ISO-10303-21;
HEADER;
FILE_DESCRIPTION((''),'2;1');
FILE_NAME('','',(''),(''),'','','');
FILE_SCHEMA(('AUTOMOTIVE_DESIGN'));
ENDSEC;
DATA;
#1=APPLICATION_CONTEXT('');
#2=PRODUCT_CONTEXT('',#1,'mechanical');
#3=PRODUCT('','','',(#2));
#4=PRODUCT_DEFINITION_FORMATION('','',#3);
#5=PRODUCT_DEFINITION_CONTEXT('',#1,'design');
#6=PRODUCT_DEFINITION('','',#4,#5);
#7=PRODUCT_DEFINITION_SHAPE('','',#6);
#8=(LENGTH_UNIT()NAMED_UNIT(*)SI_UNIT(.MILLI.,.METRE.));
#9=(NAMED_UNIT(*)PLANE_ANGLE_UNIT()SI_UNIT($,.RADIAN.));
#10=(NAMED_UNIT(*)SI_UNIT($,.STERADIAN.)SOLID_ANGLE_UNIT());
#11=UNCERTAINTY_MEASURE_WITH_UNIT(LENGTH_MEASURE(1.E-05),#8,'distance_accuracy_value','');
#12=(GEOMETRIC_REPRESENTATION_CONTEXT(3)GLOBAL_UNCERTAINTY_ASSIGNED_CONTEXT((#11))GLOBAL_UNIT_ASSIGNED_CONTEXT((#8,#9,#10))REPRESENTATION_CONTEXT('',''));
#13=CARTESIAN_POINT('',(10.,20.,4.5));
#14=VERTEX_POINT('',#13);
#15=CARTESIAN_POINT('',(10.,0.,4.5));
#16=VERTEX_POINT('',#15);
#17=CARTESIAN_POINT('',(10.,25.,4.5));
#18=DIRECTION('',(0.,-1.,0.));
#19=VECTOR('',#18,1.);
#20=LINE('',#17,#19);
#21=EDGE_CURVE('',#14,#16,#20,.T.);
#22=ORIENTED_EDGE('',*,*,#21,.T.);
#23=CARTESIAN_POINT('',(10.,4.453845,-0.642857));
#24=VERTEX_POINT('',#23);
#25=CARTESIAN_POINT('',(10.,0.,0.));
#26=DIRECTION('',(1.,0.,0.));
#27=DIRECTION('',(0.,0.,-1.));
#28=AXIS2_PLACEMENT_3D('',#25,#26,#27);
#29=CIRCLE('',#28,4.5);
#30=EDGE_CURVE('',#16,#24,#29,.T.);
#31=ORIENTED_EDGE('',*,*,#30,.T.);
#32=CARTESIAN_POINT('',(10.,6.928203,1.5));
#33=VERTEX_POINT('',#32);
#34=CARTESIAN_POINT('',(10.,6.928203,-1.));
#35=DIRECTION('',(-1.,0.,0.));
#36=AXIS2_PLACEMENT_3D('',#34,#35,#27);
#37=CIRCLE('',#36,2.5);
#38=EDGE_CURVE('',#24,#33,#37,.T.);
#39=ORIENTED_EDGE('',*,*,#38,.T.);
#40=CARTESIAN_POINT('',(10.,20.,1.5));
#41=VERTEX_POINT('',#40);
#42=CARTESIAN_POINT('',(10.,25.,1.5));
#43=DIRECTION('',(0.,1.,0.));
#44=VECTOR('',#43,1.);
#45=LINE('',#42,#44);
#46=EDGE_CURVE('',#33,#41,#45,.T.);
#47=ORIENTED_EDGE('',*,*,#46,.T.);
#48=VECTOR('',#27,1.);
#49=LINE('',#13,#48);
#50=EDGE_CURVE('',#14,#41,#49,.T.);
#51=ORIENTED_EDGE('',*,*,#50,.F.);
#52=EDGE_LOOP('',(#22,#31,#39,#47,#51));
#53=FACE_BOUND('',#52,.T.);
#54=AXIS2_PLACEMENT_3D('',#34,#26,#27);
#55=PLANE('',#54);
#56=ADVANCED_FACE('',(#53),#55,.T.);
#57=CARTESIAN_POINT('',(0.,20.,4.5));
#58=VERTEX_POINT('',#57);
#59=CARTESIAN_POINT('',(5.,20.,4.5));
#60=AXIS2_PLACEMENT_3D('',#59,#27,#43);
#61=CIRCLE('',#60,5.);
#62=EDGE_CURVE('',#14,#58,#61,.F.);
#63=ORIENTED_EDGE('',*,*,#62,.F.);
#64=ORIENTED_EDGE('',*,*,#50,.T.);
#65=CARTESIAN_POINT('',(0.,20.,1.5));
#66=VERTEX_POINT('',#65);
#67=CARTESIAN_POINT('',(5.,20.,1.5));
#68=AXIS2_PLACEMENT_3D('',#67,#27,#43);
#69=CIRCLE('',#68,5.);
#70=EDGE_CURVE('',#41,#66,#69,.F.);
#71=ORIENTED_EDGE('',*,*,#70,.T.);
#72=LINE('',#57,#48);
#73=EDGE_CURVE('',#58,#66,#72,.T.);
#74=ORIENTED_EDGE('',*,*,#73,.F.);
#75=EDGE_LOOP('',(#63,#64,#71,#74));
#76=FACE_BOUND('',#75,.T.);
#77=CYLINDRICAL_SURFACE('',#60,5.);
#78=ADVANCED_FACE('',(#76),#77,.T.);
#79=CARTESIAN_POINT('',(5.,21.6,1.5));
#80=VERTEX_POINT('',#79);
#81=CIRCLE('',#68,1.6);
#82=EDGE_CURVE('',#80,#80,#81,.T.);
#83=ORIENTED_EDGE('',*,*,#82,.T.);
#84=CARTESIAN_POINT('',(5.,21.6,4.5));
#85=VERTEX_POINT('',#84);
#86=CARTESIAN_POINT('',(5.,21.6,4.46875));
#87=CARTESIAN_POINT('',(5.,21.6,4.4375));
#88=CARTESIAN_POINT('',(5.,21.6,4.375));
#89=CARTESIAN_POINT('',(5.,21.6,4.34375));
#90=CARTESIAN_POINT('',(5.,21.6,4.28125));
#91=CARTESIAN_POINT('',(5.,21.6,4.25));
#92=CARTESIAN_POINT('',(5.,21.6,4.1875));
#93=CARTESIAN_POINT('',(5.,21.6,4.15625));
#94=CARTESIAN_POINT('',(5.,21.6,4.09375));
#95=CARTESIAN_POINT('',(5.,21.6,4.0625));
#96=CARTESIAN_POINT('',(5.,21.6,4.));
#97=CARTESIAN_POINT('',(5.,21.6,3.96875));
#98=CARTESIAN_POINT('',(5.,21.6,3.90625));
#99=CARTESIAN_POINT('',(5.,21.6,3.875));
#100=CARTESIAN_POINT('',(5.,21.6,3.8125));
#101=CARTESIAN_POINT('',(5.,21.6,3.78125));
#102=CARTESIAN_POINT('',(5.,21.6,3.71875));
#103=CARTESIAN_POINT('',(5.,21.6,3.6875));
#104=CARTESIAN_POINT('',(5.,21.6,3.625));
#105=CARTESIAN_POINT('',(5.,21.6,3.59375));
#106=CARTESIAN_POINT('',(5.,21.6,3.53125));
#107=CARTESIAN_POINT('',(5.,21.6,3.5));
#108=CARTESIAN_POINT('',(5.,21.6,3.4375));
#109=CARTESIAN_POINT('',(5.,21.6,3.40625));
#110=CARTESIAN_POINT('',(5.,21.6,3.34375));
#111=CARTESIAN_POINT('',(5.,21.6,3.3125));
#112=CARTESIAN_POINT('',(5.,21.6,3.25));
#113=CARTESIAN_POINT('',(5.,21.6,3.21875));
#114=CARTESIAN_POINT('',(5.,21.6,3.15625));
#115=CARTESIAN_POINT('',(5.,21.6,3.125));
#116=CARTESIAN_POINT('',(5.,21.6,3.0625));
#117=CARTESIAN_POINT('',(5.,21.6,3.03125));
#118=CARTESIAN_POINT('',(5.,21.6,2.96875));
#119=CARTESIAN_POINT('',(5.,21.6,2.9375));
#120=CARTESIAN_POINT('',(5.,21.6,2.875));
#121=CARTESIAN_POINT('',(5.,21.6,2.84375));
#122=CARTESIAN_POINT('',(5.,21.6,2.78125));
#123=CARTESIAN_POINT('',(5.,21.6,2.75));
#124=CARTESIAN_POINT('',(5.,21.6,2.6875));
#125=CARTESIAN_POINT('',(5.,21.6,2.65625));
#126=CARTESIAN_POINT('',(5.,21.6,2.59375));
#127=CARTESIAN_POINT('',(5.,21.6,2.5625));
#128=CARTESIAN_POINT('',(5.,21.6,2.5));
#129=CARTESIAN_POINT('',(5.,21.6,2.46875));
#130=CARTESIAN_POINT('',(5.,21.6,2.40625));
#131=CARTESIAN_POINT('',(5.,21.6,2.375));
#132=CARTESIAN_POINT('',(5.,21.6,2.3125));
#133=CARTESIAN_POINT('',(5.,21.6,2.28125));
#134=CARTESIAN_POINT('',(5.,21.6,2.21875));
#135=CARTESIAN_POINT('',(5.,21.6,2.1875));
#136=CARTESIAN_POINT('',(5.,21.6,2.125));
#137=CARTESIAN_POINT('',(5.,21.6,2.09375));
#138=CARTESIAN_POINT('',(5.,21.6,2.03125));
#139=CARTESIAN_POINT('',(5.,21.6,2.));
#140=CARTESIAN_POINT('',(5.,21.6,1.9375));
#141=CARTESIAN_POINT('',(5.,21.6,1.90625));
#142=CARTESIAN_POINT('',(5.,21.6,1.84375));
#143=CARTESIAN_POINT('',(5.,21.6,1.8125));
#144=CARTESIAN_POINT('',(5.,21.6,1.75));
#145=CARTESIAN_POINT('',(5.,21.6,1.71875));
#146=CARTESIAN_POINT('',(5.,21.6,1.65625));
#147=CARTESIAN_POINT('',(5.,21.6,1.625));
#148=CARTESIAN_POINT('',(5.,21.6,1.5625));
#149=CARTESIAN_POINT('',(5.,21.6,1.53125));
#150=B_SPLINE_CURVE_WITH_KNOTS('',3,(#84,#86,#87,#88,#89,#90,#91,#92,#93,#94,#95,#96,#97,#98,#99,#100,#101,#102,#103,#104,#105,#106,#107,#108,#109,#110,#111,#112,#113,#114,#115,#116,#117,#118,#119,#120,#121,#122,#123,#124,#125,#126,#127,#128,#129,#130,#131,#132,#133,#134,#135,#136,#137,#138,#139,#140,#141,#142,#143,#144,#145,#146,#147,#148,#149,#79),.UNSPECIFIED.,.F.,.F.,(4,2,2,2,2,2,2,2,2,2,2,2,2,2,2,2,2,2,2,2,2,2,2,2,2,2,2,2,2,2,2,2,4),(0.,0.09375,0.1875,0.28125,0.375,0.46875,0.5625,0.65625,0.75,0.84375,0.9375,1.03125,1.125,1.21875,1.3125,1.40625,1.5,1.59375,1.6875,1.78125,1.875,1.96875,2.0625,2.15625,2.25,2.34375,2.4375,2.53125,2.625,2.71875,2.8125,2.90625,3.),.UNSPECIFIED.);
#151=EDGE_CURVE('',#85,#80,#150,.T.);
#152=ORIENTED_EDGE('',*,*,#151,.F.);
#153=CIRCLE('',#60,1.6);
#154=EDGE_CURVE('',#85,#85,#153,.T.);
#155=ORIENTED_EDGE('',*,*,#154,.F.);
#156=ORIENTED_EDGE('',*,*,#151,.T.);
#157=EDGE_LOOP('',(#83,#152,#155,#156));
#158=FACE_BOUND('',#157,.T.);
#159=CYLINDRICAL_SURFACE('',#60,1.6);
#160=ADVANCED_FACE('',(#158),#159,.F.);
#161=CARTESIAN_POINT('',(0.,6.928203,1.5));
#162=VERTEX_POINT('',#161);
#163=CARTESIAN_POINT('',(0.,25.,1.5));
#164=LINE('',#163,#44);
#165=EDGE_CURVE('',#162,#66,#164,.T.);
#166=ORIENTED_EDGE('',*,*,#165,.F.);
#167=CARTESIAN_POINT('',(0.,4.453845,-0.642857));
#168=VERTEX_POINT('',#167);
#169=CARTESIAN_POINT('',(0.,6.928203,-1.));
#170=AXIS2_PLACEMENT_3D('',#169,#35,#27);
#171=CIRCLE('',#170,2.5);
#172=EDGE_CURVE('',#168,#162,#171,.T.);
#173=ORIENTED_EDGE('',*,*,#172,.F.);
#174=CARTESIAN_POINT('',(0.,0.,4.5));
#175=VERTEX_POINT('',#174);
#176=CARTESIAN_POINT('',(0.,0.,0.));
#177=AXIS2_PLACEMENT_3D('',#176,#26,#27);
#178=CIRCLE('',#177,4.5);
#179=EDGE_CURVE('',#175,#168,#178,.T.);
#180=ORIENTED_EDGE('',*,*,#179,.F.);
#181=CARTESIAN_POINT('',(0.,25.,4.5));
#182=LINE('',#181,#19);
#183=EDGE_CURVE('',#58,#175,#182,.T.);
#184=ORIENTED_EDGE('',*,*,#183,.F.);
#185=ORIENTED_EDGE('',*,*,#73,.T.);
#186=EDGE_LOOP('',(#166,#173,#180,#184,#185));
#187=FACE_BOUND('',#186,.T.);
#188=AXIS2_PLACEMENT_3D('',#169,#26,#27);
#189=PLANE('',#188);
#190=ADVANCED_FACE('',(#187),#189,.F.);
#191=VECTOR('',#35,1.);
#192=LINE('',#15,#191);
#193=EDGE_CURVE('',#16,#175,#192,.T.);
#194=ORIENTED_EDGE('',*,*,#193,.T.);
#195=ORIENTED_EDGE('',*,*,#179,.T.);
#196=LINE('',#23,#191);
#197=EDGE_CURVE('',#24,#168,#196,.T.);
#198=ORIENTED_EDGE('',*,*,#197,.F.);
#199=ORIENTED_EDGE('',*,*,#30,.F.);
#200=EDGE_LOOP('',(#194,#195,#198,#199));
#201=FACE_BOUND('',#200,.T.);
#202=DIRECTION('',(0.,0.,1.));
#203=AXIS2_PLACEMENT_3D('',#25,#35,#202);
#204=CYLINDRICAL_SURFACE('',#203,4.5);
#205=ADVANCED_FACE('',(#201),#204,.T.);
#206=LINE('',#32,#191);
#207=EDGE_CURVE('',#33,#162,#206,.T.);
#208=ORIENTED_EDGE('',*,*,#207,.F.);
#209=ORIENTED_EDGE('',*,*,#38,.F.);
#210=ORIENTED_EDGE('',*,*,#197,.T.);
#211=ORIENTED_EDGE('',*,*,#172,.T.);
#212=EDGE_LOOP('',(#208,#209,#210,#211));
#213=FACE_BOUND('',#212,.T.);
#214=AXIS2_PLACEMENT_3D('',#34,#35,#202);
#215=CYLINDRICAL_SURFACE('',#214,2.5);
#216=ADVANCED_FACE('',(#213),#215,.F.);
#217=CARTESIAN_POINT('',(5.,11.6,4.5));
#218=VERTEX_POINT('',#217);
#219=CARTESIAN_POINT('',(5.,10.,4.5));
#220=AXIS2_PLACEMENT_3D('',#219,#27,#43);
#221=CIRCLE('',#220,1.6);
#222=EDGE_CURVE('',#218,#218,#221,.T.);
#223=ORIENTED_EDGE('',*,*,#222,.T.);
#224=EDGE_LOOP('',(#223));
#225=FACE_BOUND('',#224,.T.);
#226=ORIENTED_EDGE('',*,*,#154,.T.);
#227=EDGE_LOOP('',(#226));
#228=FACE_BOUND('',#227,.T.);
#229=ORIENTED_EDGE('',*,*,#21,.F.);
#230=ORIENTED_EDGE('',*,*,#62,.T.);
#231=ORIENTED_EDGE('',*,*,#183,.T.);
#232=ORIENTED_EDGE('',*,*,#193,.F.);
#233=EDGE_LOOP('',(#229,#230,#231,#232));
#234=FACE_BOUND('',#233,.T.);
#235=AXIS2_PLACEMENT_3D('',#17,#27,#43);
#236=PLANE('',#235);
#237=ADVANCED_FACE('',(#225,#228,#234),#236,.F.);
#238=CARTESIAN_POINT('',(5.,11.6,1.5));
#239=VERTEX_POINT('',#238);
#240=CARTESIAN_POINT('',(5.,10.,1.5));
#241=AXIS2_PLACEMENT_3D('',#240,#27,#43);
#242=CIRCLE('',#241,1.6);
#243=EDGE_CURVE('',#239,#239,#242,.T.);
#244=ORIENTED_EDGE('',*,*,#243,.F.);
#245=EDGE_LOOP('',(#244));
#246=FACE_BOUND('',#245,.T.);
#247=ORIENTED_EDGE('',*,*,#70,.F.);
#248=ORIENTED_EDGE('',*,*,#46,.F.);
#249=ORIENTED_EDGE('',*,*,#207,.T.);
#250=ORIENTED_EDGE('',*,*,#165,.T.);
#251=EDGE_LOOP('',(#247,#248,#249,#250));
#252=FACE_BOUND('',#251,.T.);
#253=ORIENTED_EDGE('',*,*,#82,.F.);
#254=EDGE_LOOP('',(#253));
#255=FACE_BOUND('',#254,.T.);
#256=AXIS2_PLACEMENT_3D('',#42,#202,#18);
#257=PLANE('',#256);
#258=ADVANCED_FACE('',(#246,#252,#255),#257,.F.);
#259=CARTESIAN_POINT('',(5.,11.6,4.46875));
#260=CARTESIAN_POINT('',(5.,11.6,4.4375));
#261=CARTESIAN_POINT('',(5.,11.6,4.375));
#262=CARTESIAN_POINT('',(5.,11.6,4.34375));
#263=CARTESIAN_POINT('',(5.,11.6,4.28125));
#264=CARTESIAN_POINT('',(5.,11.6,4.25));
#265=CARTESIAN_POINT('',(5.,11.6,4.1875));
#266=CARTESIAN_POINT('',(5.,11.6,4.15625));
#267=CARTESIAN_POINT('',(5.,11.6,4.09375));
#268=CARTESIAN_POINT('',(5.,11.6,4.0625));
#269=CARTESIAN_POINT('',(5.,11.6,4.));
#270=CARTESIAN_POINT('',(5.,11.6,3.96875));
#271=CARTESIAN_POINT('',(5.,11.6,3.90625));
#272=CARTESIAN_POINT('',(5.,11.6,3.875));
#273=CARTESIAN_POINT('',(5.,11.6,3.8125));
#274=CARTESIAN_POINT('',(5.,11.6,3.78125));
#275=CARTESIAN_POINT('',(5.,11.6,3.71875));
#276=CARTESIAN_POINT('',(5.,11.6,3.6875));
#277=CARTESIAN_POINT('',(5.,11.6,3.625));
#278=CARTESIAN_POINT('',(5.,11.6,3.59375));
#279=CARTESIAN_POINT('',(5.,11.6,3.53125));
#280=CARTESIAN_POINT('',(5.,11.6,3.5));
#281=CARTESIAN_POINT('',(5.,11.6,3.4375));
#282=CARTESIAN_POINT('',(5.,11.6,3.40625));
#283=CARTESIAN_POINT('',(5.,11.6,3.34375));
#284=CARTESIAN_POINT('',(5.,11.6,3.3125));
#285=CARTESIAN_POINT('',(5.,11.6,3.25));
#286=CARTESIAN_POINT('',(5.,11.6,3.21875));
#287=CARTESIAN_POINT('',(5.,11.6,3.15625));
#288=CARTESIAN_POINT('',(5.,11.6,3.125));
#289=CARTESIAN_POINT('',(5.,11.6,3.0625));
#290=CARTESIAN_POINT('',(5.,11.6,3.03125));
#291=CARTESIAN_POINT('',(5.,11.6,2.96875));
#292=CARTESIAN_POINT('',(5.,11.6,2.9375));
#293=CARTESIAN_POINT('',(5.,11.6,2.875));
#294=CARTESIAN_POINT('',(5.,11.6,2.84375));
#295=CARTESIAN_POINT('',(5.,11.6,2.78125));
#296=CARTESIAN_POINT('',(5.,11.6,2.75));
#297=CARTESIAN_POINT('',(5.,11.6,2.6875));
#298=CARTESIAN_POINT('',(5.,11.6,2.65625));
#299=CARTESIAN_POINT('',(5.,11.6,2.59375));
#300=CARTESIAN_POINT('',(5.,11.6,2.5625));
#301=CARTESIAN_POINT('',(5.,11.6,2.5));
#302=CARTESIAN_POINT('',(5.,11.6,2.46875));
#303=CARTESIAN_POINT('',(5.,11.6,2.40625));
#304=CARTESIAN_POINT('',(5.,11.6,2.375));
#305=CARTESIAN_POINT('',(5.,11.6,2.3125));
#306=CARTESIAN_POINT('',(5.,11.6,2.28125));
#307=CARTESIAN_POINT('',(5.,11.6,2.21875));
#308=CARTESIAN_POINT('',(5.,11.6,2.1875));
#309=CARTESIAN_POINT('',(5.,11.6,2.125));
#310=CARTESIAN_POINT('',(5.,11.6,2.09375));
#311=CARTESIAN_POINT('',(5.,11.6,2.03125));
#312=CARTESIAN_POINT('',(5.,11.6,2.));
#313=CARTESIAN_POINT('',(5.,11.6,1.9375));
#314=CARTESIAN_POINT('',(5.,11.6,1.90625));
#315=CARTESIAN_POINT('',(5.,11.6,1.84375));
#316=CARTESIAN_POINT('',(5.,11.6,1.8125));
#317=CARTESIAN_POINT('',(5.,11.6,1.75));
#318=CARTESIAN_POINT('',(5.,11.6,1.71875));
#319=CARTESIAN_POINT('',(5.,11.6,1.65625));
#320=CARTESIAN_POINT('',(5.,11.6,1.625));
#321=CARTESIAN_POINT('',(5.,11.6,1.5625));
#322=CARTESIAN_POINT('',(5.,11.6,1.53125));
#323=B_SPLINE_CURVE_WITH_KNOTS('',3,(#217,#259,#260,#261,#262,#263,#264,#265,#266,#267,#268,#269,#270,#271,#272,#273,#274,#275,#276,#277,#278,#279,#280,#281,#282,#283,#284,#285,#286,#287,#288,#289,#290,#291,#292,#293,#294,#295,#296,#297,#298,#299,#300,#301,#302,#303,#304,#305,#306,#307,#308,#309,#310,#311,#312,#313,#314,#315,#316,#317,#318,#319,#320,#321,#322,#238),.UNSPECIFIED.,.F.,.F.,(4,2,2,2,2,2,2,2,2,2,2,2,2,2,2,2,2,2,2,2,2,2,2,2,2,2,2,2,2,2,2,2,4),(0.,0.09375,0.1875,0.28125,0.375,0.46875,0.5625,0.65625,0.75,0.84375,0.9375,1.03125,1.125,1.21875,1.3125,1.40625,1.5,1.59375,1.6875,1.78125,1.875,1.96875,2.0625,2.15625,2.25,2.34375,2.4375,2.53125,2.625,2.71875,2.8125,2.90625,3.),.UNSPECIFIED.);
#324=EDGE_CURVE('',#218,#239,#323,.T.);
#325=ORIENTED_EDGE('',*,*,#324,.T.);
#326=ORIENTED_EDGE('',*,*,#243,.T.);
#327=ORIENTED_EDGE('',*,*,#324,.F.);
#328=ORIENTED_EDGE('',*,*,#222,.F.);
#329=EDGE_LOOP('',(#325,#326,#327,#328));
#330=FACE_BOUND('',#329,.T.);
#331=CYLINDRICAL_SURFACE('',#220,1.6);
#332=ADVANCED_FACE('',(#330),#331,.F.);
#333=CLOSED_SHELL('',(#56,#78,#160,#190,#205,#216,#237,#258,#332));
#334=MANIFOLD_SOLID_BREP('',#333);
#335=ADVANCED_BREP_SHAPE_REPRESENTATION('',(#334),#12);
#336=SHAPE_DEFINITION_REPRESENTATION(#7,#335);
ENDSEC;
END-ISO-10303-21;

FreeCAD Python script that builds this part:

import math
import FreeCAD as App
import Part
import Sketcher
Q = App.Units.Quantity

doc = App.newDocument("Part")
body = doc.addObject("PartDesign::Body", "Body")

sketch1 = doc.addObject("Sketcher::SketchObject", "Sketch")
body.addObject(sketch1)
sketch1.AttachmentSupport = (doc.YZ_Plane, [""])
sketch1.MapMode = "FlatFace"
sketch1.addGeometry([
    Part.LineSegment(App.Vector(25, 1.5, 0), App.Vector(25, 4.5, 0)),
    Part.LineSegment(App.Vector(25, 4.5, 0), App.Vector(0, 4.5, 0)),
    Part.ArcOfCircle(Part.Circle(App.Vector(0, 0, 0), App.Vector(0, 0, 1), 4.5), math.radians(90), math.radians(351.786789)),
    Part.ArcOfCircle(Part.Circle(App.Vector(6.928203, -1, 0), App.Vector(0, 0, 1), 2.5), math.radians(90), math.radians(171.786789)),
    Part.LineSegment(App.Vector(6.928203, 1.5, 0), App.Vector(25, 1.5, 0)),
], False)
sketch1.addConstraint([
    Sketcher.Constraint("Coincident", 0, 2, 1, 1),
    Sketcher.Constraint("Tangent", 1, 2, 2, 1),
    Sketcher.Constraint("Tangent", 2, 2, 3, 2),
    Sketcher.Constraint("Tangent", 3, 1, 4, 1),
    Sketcher.Constraint("Coincident", 4, 2, 0, 1),
    Sketcher.Constraint("Vertical", 0),
    Sketcher.Constraint("Horizontal", 1),
    Sketcher.Constraint("Horizontal", 4),
    Sketcher.Constraint("Coincident", 2, 3, -1, 1),
    Sketcher.Constraint("Radius", 2, Q("4.5 mm")),
    Sketcher.Constraint("Radius", 3, Q("2.5 mm")),
    Sketcher.Constraint("DistanceX", 1, 2, 1, 1, Q("25 mm")),
    Sketcher.Constraint("DistanceY", 0, 1, 0, 2, Q("3 mm")),
])
pad1 = doc.addObject("PartDesign::Pad", "Pad")
body.addObject(pad1)
pad1.Profile = sketch1
pad1.Length = 10

sketch2 = doc.addObject("Sketcher::SketchObject", "Sketch001")
body.addObject(sketch2)
sketch2.AttachmentSupport = (doc.XY_Plane, [""])
sketch2.MapMode = "FlatFace"
sketch2.AttachmentOffset = App.Placement(App.Vector(0, 0, 1.5), App.Rotation())
sketch2.addGeometry([
    Part.LineSegment(App.Vector(10, 25, 0), App.Vector(10, 20, 0)),
    Part.ArcOfCircle(Part.Circle(App.Vector(5, 20, 0), App.Vector(0, 0, 1), 5), math.radians(0), math.radians(90)),
    Part.LineSegment(App.Vector(5, 25, 0), App.Vector(10, 25, 0)),
    Part.LineSegment(App.Vector(0, 25, 0), App.Vector(5, 25, 0)),
    Part.ArcOfCircle(Part.Circle(App.Vector(5, 20, 0), App.Vector(0, 0, 1), 5), math.radians(90), math.radians(180)),
    Part.LineSegment(App.Vector(0, 20, 0), App.Vector(0, 25, 0)),
    Part.Circle(App.Vector(5, 20, 0), App.Vector(0, 0, 1), 1.6),
    Part.Circle(App.Vector(5, 10, 0), App.Vector(0, 0, 1), 1.6),
], False)
sketch2.addConstraint([
    Sketcher.Constraint("Tangent", 0, 2, 1, 1),
    Sketcher.Constraint("Tangent", 1, 2, 2, 1),
    Sketcher.Constraint("Coincident", 2, 2, 0, 1),
    Sketcher.Constraint("Tangent", 3, 2, 4, 1),
    Sketcher.Constraint("Tangent", 4, 2, 5, 1),
    Sketcher.Constraint("Coincident", 5, 2, 3, 1),
    Sketcher.Constraint("Vertical", 0),
    Sketcher.Constraint("Horizontal", 2),
    Sketcher.Constraint("Horizontal", 3),
    Sketcher.Constraint("Vertical", 5),
    Sketcher.Constraint("Coincident", 4, 3, 1, 3),
    Sketcher.Constraint("Coincident", 6, 3, 1, 3),
    Sketcher.Constraint("Equal", 1, 4),
    Sketcher.Constraint("Equal", 6, 7),
    Sketcher.Constraint("PointOnObject", 4, 2, -2),
    Sketcher.Constraint("Vertical", 6, 3, 7, 3),
    Sketcher.Constraint("Radius", 1, Q("5 mm")),
    Sketcher.Constraint("Diameter", 6, Q("3.2 mm")),
    Sketcher.Constraint("DistanceY", -1, 1, 1, 3, Q("20 mm")),
    Sketcher.Constraint("DistanceY", -1, 1, 7, 3, Q("10 mm")),
])
pocket1 = doc.addObject("PartDesign::Pocket", "Pocket")
body.addObject(pocket1)
pocket1.Profile = sketch2
pocket1.Type = "ThroughAll"
pocket1.Reversed = True

doc.recompute()
